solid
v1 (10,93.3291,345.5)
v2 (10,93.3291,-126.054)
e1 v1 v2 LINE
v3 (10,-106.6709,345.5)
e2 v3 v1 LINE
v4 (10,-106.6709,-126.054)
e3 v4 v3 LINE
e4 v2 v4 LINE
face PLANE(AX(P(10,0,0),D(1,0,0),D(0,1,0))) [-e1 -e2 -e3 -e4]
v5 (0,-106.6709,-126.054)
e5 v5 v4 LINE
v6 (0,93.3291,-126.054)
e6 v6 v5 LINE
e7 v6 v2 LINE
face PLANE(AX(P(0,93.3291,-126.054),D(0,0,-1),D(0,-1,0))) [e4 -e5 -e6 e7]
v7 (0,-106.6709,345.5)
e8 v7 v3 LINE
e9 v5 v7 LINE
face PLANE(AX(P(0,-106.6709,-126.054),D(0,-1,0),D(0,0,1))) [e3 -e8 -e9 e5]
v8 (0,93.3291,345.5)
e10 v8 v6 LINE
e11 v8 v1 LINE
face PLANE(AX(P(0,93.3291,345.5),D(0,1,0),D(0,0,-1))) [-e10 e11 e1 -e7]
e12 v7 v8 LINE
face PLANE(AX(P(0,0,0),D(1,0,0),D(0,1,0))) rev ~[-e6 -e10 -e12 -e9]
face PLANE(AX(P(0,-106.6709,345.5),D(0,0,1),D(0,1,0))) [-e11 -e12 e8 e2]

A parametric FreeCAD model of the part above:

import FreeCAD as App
import Part
import Sketcher


def add_polygon(sketch, points):
    """Adds a closed chain of lines whose ends are joined by coincident constraints."""
    first, n = sketch.GeometryCount, len(points)
    for a, b in zip(points, points[1:] + points[:1]):
        sketch.addGeometry(Part.LineSegment(App.Vector(*a, 0), App.Vector(*b, 0)), False)
    for i in range(n):
        sketch.addConstraint(Sketcher.Constraint("Coincident", first + i, 2, first + (i + 1) % n, 1))

doc = App.newDocument("Part")
body = doc.addObject("PartDesign::Body", "Body")

# Sketch on YZ plane
sketch1 = doc.addObject("Sketcher::SketchObject", "Sketch")
body.addObject(sketch1)
sketch1.AttachmentSupport = (doc.YZ_Plane, [""])
sketch1.MapMode = "FlatFace"
add_polygon(sketch1, [(93, 346), (-107, 346), (-107, -126), (93, -126)])  # lines 0-3
sketch1.addConstraint([
    Sketcher.Constraint("Horizontal", 0),
    Sketcher.Constraint("Vertical", 1),
    Sketcher.Constraint("Horizontal", 2),
    Sketcher.Constraint("Vertical", 3),
    Sketcher.Constraint("DistanceX", 0, 2, 0, 1, 200.0),
    Sketcher.Constraint("DistanceY", 1, 2, 1, 1, 471.554),
    Sketcher.Constraint("DistanceY", -1, 1, 0, 2, 345.5),
    Sketcher.Constraint("DistanceX", 0, 2, -1, 1, 106.671),
])
pad1 = doc.addObject("PartDesign::Pad", "Pad")
body.addObject(pad1)
pad1.Profile = sketch1
pad1.Length = 10

doc.recompute()
